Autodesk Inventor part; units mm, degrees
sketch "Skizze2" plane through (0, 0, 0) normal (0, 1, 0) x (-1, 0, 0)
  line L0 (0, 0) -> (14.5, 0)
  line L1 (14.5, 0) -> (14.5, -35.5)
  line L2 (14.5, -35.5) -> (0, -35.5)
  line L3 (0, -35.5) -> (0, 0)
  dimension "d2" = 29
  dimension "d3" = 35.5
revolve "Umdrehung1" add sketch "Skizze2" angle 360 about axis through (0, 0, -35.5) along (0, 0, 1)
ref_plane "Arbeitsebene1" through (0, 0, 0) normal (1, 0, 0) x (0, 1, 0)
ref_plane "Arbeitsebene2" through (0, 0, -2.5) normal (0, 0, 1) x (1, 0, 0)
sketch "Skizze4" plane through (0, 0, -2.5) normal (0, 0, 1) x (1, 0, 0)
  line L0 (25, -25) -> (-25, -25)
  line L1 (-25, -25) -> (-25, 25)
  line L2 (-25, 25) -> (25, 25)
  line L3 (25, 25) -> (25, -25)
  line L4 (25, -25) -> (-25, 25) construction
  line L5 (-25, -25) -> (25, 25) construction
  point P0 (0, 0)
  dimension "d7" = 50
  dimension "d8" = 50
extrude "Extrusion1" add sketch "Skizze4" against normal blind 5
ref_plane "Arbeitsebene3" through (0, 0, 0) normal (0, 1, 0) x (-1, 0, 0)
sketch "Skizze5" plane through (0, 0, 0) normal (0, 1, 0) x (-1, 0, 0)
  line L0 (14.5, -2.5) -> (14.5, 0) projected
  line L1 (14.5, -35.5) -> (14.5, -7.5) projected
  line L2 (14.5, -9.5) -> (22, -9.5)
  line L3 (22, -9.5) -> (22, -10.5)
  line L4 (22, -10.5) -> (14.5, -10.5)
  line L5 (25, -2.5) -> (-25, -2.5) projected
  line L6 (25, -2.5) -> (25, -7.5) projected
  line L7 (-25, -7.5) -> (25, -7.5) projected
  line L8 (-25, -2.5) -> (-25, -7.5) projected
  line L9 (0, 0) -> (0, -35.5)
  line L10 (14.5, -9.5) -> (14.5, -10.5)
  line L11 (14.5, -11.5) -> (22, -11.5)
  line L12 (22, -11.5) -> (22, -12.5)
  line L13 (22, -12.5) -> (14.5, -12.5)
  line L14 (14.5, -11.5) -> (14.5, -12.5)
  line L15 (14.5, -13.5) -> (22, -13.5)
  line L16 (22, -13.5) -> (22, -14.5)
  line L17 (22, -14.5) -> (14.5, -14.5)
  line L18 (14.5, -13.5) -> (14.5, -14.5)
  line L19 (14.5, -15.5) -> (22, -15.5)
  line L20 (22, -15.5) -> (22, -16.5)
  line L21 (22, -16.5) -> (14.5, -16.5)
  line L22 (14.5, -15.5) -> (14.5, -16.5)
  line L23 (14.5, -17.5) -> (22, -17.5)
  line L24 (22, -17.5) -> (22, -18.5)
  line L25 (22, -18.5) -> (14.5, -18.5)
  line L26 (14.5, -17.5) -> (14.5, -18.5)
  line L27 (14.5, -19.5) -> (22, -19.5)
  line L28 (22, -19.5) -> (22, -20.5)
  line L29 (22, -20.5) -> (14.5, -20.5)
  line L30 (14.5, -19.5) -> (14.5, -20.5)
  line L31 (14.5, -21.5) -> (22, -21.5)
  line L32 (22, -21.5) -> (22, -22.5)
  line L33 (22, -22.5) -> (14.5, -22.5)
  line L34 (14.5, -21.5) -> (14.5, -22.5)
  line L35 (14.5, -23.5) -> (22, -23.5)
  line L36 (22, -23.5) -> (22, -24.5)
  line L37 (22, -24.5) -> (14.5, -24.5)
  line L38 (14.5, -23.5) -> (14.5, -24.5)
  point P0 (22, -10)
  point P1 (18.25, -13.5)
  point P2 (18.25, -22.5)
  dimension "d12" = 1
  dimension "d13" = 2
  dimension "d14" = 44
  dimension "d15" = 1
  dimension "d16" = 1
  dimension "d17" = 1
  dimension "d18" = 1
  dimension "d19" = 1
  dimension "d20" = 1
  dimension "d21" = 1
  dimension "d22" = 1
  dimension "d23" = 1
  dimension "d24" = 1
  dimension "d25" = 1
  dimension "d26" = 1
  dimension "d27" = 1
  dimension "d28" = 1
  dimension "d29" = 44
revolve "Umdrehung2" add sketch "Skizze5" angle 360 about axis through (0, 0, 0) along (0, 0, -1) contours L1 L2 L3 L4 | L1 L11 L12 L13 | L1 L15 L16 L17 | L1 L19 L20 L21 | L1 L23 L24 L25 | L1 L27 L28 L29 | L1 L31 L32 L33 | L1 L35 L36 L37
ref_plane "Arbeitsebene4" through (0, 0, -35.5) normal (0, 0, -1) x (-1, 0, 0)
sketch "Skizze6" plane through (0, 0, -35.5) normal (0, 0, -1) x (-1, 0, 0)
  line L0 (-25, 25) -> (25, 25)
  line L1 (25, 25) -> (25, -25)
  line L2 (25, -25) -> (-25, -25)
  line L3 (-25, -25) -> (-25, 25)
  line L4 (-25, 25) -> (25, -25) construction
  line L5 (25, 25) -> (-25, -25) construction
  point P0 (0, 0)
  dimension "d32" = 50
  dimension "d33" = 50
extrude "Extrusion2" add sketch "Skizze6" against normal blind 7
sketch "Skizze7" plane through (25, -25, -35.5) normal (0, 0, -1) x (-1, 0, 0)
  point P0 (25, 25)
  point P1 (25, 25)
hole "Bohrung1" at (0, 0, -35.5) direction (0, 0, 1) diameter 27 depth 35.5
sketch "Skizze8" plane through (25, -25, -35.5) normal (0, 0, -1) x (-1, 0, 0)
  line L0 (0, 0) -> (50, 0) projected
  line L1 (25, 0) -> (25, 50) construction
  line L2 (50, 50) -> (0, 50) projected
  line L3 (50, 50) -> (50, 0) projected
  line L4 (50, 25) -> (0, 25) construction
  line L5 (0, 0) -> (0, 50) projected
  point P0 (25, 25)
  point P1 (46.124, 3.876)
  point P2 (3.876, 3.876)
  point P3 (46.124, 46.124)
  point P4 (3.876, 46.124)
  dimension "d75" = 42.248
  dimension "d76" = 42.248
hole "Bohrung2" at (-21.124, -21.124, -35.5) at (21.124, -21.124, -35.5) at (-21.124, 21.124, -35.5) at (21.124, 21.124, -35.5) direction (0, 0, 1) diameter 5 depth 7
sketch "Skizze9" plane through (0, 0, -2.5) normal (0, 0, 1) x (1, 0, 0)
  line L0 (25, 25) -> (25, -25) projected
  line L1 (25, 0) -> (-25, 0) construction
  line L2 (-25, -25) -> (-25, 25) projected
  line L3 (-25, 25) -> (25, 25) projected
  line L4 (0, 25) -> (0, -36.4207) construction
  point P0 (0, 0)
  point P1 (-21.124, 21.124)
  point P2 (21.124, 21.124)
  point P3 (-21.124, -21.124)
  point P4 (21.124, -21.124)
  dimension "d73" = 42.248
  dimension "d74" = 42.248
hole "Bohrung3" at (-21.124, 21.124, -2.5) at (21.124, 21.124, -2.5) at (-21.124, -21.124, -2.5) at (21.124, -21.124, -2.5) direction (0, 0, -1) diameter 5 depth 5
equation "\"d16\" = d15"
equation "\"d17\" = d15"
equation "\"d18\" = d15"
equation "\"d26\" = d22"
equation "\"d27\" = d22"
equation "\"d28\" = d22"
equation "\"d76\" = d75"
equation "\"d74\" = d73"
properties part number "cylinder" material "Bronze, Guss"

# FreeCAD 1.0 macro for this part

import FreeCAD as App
import Part
import Sketcher

V = App.Vector
Q = App.Units.Quantity

doc = App.newDocument("Part")
body = doc.addObject("PartDesign::Body", "Body")

sketch1 = body.newObject("Sketcher::SketchObject", "Sketch")
sketch1.AttachmentSupport = (doc.getObject("XZ_Plane"), [""])
sketch1.MapMode = "FlatFace"
sketch1.addGeometry(Part.LineSegment(V(-14, 0, 0), V(0, 0, 0)), False)
sketch1.addGeometry(Part.LineSegment(V(0, 0, 0), V(0, -36, 0)), False)
sketch1.addGeometry(Part.LineSegment(V(0, -36, 0), V(-14, -36, 0)), False)
sketch1.addGeometry(Part.LineSegment(V(-14, -36, 0), V(-14, 0, 0)), False)
sketch1.addConstraint(Sketcher.Constraint("Coincident", 0, 2, 1, 1))
sketch1.addConstraint(Sketcher.Constraint("Coincident", 1, 2, 2, 1))
sketch1.addConstraint(Sketcher.Constraint("Coincident", 2, 2, 3, 1))
sketch1.addConstraint(Sketcher.Constraint("Coincident", 3, 2, 0, 1))
sketch1.addConstraint(Sketcher.Constraint("Horizontal", 0))
sketch1.addConstraint(Sketcher.Constraint("Vertical", 1))
sketch1.addConstraint(Sketcher.Constraint("Horizontal", 2))
sketch1.addConstraint(Sketcher.Constraint("Vertical", 3))
sketch1.addConstraint(Sketcher.Constraint("Coincident", 0, 2, -1, 1))
sketch1.addConstraint(Sketcher.Constraint("DistanceY", 1, 2, 1, 1, Q("35.5 mm")))
sketch1.addConstraint(Sketcher.Constraint("DistanceX", 0, 1, 0, 2, Q("14.5 mm")))
revolution = body.newObject("PartDesign::Revolution", "Revolution")
revolution.Profile = sketch1
revolution.ReferenceAxis = (sketch1, ["V_Axis"])
revolution.Angle = 360

sketch2 = body.newObject("Sketcher::SketchObject", "Sketch001")
sketch2.AttachmentSupport = (doc.getObject("XY_Plane"), [""])
sketch2.MapMode = "FlatFace"
sketch2.AttachmentOffset = App.Placement(V(0, 0, -2.5), App.Rotation())
sketch2.addGeometry(Part.LineSegment(V(-25, -25, 0), V(25, -25, 0)), False)
sketch2.addGeometry(Part.LineSegment(V(25, -25, 0), V(25, 25, 0)), False)
sketch2.addGeometry(Part.LineSegment(V(25, 25, 0), V(-25, 25, 0)), False)
sketch2.addGeometry(Part.LineSegment(V(-25, 25, 0), V(-25, -25, 0)), False)
sketch2.addConstraint(Sketcher.Constraint("Coincident", 0, 2, 1, 1))
sketch2.addConstraint(Sketcher.Constraint("Coincident", 1, 2, 2, 1))
sketch2.addConstraint(Sketcher.Constraint("Coincident", 2, 2, 3, 1))
sketch2.addConstraint(Sketcher.Constraint("Coincident", 3, 2, 0, 1))
sketch2.addConstraint(Sketcher.Constraint("Horizontal", 0))
sketch2.addConstraint(Sketcher.Constraint("Vertical", 1))
sketch2.addConstraint(Sketcher.Constraint("Horizontal", 2))
sketch2.addConstraint(Sketcher.Constraint("Vertical", 3))
sketch2.addConstraint(Sketcher.Constraint("Symmetric", 0, 2, 2, 2, -1, 1))
sketch2.addConstraint(Sketcher.Constraint("Equal", 2, 1))
sketch2.addConstraint(Sketcher.Constraint("DistanceX", 0, 1, 0, 2, Q("50 mm")))
pad1 = body.newObject("PartDesign::Pad", "Pad")
pad1.Profile = sketch2
pad1.Length = 5
pad1.Reversed = True

sketch3 = body.newObject("Sketcher::SketchObject", "Sketch002")
sketch3.AttachmentSupport = (doc.getObject("XZ_Plane"), [""])
sketch3.MapMode = "FlatFace"
sketch3.addGeometry(Part.LineSegment(V(-14.5, -9.5, 0), V(-14.5, -10.5, 0)), False)
sketch3.addGeometry(Part.LineSegment(V(-14.5, -10.5, 0), V(-22, -10.5, 0)), False)
sketch3.addGeometry(Part.LineSegment(V(-22, -10.5, 0), V(-22, -9.5, 0)), False)
sketch3.addGeometry(Part.LineSegment(V(-22, -9.5, 0), V(-14.5, -9.5, 0)), False)
sketch3.addGeometry(Part.LineSegment(V(-14.5, -11.5, 0), V(-14.5, -12.5, 0)), False)
sketch3.addGeometry(Part.LineSegment(V(-14.5, -12.5, 0), V(-22, -12.5, 0)), False)
sketch3.addGeometry(Part.LineSegment(V(-22, -12.5, 0), V(-22, -11.5, 0)), False)
sketch3.addGeometry(Part.LineSegment(V(-22, -11.5, 0), V(-14.5, -11.5, 0)), False)
sketch3.addGeometry(Part.LineSegment(V(-14.5, -13.5, 0), V(-14.5, -14.5, 0)), False)
sketch3.addGeometry(Part.LineSegment(V(-14.5, -14.5, 0), V(-22, -14.5, 0)), False)
sketch3.addGeometry(Part.LineSegment(V(-22, -14.5, 0), V(-22, -13.5, 0)), False)
sketch3.addGeometry(Part.LineSegment(V(-22, -13.5, 0), V(-14.5, -13.5, 0)), False)
sketch3.addGeometry(Part.LineSegment(V(-14.5, -15.5, 0), V(-14.5, -16.5, 0)), False)
sketch3.addGeometry(Part.LineSegment(V(-14.5, -16.5, 0), V(-22, -16.5, 0)), False)
sketch3.addGeometry(Part.LineSegment(V(-22, -16.5, 0), V(-22, -15.5, 0)), False)
sketch3.addGeometry(Part.LineSegment(V(-22, -15.5, 0), V(-14.5, -15.5, 0)), False)
sketch3.addGeometry(Part.LineSegment(V(-14.5, -17.5, 0), V(-14.5, -18.5, 0)), False)
sketch3.addGeometry(Part.LineSegment(V(-14.5, -18.5, 0), V(-22, -18.5, 0)), False)
sketch3.addGeometry(Part.LineSegment(V(-22, -18.5, 0), V(-22, -17.5, 0)), False)
sketch3.addGeometry(Part.LineSegment(V(-22, -17.5, 0), V(-14.5, -17.5, 0)), False)
sketch3.addGeometry(Part.LineSegment(V(-14.5, -19.5, 0), V(-14.5, -20.5, 0)), False)
sketch3.addGeometry(Part.LineSegment(V(-14.5, -20.5, 0), V(-22, -20.5, 0)), False)
sketch3.addGeometry(Part.LineSegment(V(-22, -20.5, 0), V(-22, -19.5, 0)), False)
sketch3.addGeometry(Part.LineSegment(V(-22, -19.5, 0), V(-14.5, -19.5, 0)), False)
sketch3.addGeometry(Part.LineSegment(V(-14.5, -21.5, 0), V(-14.5, -22.5, 0)), False)
sketch3.addGeometry(Part.LineSegment(V(-14.5, -22.5, 0), V(-22, -22.5, 0)), False)
sketch3.addGeometry(Part.LineSegment(V(-22, -22.5, 0), V(-22, -21.5, 0)), False)
sketch3.addGeometry(Part.LineSegment(V(-22, -21.5, 0), V(-14.5, -21.5, 0)), False)
sketch3.addGeometry(Part.LineSegment(V(-14.5, -23.5, 0), V(-14.5, -24.5, 0)), False)
sketch3.addGeometry(Part.LineSegment(V(-14.5, -24.5, 0), V(-22, -24.5, 0)), False)
sketch3.addGeometry(Part.LineSegment(V(-22, -24.5, 0), V(-22, -23.5, 0)), False)
sketch3.addGeometry(Part.LineSegment(V(-22, -23.5, 0), V(-14.5, -23.5, 0)), False)
sketch3.addConstraint(Sketcher.Constraint("Coincident", 0, 2, 1, 1))
sketch3.addConstraint(Sketcher.Constraint("Coincident", 1, 2, 2, 1))
sketch3.addConstraint(Sketcher.Constraint("Coincident", 2, 2, 3, 1))
sketch3.addConstraint(Sketcher.Constraint("Coincident", 3, 2, 0, 1))
sketch3.addConstraint(Sketcher.Constraint("Coincident", 4, 2, 5, 1))
sketch3.addConstraint(Sketcher.Constraint("Coincident", 5, 2, 6, 1))
sketch3.addConstraint(Sketcher.Constraint("Coincident", 6, 2, 7, 1))
sketch3.addConstraint(Sketcher.Constraint("Coincident", 7, 2, 4, 1))
sketch3.addConstraint(Sketcher.Constraint("Coincident", 8, 2, 9, 1))
sketch3.addConstraint(Sketcher.Constraint("Coincident", 9, 2, 10, 1))
sketch3.addConstraint(Sketcher.Constraint("Coincident", 10, 2, 11, 1))
sketch3.addConstraint(Sketcher.Constraint("Coincident", 11, 2, 8, 1))
sketch3.addConstraint(Sketcher.Constraint("Coincident", 12, 2, 13, 1))
sketch3.addConstraint(Sketcher.Constraint("Coincident", 13, 2, 14, 1))
sketch3.addConstraint(Sketcher.Constraint("Coincident", 14, 2, 15, 1))
sketch3.addConstraint(Sketcher.Constraint("Coincident", 15, 2, 12, 1))
sketch3.addConstraint(Sketcher.Constraint("Coincident", 16, 2, 17, 1))
sketch3.addConstraint(Sketcher.Constraint("Coincident", 17, 2, 18, 1))
sketch3.addConstraint(Sketcher.Constraint("Coincident", 18, 2, 19, 1))
sketch3.addConstraint(Sketcher.Constraint("Coincident", 19, 2, 16, 1))
sketch3.addConstraint(Sketcher.Constraint("Coincident", 20, 2, 21, 1))
sketch3.addConstraint(Sketcher.Constraint("Coincident", 21, 2, 22, 1))
sketch3.addConstraint(Sketcher.Constraint("Coincident", 22, 2, 23, 1))
sketch3.addConstraint(Sketcher.Constraint("Coincident", 23, 2, 20, 1))
sketch3.addConstraint(Sketcher.Constraint("Coincident", 24, 2, 25, 1))
sketch3.addConstraint(Sketcher.Constraint("Coincident", 25, 2, 26, 1))
sketch3.addConstraint(Sketcher.Constraint("Coincident", 26, 2, 27, 1))
sketch3.addConstraint(Sketcher.Constraint("Coincident", 27, 2, 24, 1))
sketch3.addConstraint(Sketcher.Constraint("Coincident", 28, 2, 29, 1))
sketch3.addConstraint(Sketcher.Constraint("Coincident", 29, 2, 30, 1))
sketch3.addConstraint(Sketcher.Constraint("Coincident", 30, 2, 31, 1))
sketch3.addConstraint(Sketcher.Constraint("Coincident", 31, 2, 28, 1))
sketch3.addConstraint(Sketcher.Constraint("Vertical", 0))
sketch3.addConstraint(Sketcher.Constraint("Horizontal", 1))
sketch3.addConstraint(Sketcher.Constraint("Vertical", 2))
sketch3.addConstraint(Sketcher.Constraint("Horizontal", 3))
sketch3.addConstraint(Sketcher.Constraint("Vertical", 4))
sketch3.addConstraint(Sketcher.Constraint("Horizontal", 5))
sketch3.addConstraint(Sketcher.Constraint("Vertical", 6))
sketch3.addConstraint(Sketcher.Constraint("Horizontal", 7))
sketch3.addConstraint(Sketcher.Constraint("Vertical", 8))
sketch3.addConstraint(Sketcher.Constraint("Horizontal", 9))
sketch3.addConstraint(Sketcher.Constraint("Vertical", 10))
sketch3.addConstraint(Sketcher.Constraint("Horizontal", 11))
sketch3.addConstraint(Sketcher.Constraint("Vertical", 12))
sketch3.addConstraint(Sketcher.Constraint("Horizontal", 13))
sketch3.addConstraint(Sketcher.Constraint("Vertical", 14))
sketch3.addConstraint(Sketcher.Constraint("Horizontal", 15))
sketch3.addConstraint(Sketcher.Constraint("Vertical", 16))
sketch3.addConstraint(Sketcher.Constraint("Horizontal", 17))
sketch3.addConstraint(Sketcher.Constraint("Vertical", 18))
sketch3.addConstraint(Sketcher.Constraint("Horizontal", 19))
sketch3.addConstraint(Sketcher.Constraint("Vertical", 20))
sketch3.addConstraint(Sketcher.Constraint("Horizontal", 21))
sketch3.addConstraint(Sketcher.Constraint("Vertical", 22))
sketch3.addConstraint(Sketcher.Constraint("Horizontal", 23))
sketch3.addConstraint(Sketcher.Constraint("Vertical", 24))
sketch3.addConstraint(Sketcher.Constraint("Horizontal", 25))
sketch3.addConstraint(Sketcher.Constraint("Vertical", 26))
sketch3.addConstraint(Sketcher.Constraint("Horizontal", 27))
sketch3.addConstraint(Sketcher.Constraint("Vertical", 28))
sketch3.addConstraint(Sketcher.Constraint("Horizontal", 29))
sketch3.addConstraint(Sketcher.Constraint("Vertical", 30))
sketch3.addConstraint(Sketcher.Constraint("Horizontal", 31))
sketch3.addConstraint(Sketcher.Constraint("Vertical", 3, 2, 4, 2))
sketch3.addConstraint(Sketcher.Constraint("Vertical", 2, 2, 5, 2))
sketch3.addConstraint(Sketcher.Constraint("Vertical", 7, 2, 8, 2))
sketch3.addConstraint(Sketcher.Constraint("Vertical", 6, 2, 9, 2))
sketch3.addConstraint(Sketcher.Constraint("Vertical", 11, 2, 12, 2))
sketch3.addConstraint(Sketcher.Constraint("Vertical", 10, 2, 13, 2))
sketch3.addConstraint(Sketcher.Constraint("Vertical", 15, 2, 16, 2))
sketch3.addConstraint(Sketcher.Constraint("Vertical", 14, 2, 17, 2))
sketch3.addConstraint(Sketcher.Constraint("Vertical", 19, 2, 20, 2))
sketch3.addConstraint(Sketcher.Constraint("Vertical", 18, 2, 21, 2))
sketch3.addConstraint(Sketcher.Constraint("Vertical", 23, 2, 24, 2))
sketch3.addConstraint(Sketcher.Constraint("Vertical", 22, 2, 25, 2))
sketch3.addConstraint(Sketcher.Constraint("Vertical", 27, 2, 28, 2))
sketch3.addConstraint(Sketcher.Constraint("Vertical", 26, 2, 29, 2))
sketch3.addConstraint(Sketcher.Constraint("Equal", 2, 4))
sketch3.addConstraint(Sketcher.Constraint("Equal", 6, 8))
sketch3.addConstraint(Sketcher.Constraint("Equal", 10, 12))
sketch3.addConstraint(Sketcher.Constraint("Equal", 14, 16))
sketch3.addConstraint(Sketcher.Constraint("Equal", 18, 20))
sketch3.addConstraint(Sketcher.Constraint("Equal", 22, 24))
sketch3.addConstraint(Sketcher.Constraint("Equal", 26, 28))
sketch3.addConstraint(Sketcher.Constraint("DistanceY", 0, 2, 0, 1, Q("1 mm")))
sketch3.addConstraint(Sketcher.Constraint("DistanceY", 4, 2, 0, 2, Q("2 mm")))
sketch3.addConstraint(Sketcher.Constraint("DistanceY", 8, 2, 4, 2, Q("2 mm")))
sketch3.addConstraint(Sketcher.Constraint("DistanceY", 12, 2, 8, 2, Q("2 mm")))
sketch3.addConstraint(Sketcher.Constraint("DistanceY", 16, 2, 12, 2, Q("2 mm")))
sketch3.addConstraint(Sketcher.Constraint("DistanceY", 20, 2, 16, 2, Q("2 mm")))
sketch3.addConstraint(Sketcher.Constraint("DistanceY", 24, 2, 20, 2, Q("2 mm")))
sketch3.addConstraint(Sketcher.Constraint("DistanceY", 28, 2, 24, 2, Q("2 mm")))
sketch3.addConstraint(Sketcher.Constraint("DistanceX", 1, 2, 1, 1, Q("7.5 mm")))
sketch3.addConstraint(Sketcher.Constraint("DistanceX", 1, 2, -1, 1, Q("22 mm")))
sketch3.addConstraint(Sketcher.Constraint("DistanceY", 0, 2, -1, 1, Q("10.5 mm")))
revolution2 = body.newObject("PartDesign::Revolution", "Revolution001")
revolution2.Profile = sketch3
revolution2.ReferenceAxis = (sketch3, ["V_Axis"])
revolution2.Angle = 360

sketch4 = body.newObject("Sketcher::SketchObject", "Sketch003")
sketch4.AttachmentSupport = (doc.getObject("XY_Plane"), [""])
sketch4.MapMode = "FlatFace"
sketch4.AttachmentOffset = App.Placement(V(0, 0, -35.5), App.Rotation())
sketch4.addGeometry(Part.LineSegment(V(-25, 25, 0), V(25, 25, 0)), False)
sketch4.addGeometry(Part.LineSegment(V(25, 25, 0), V(25, -25, 0)), False)
sketch4.addGeometry(Part.LineSegment(V(25, -25, 0), V(-25, -25, 0)), False)
sketch4.addGeometry(Part.LineSegment(V(-25, -25, 0), V(-25, 25, 0)), False)
sketch4.addConstraint(Sketcher.Constraint("Coincident", 0, 2, 1, 1))
sketch4.addConstraint(Sketcher.Constraint("Coincident", 1, 2, 2, 1))
sketch4.addConstraint(Sketcher.Constraint("Coincident", 2, 2, 3, 1))
sketch4.addConstraint(Sketcher.Constraint("Coincident", 3, 2, 0, 1))
sketch4.addConstraint(Sketcher.Constraint("Horizontal", 0))
sketch4.addConstraint(Sketcher.Constraint("Vertical", 1))
sketch4.addConstraint(Sketcher.Constraint("Horizontal", 2))
sketch4.addConstraint(Sketcher.Constraint("Vertical", 3))
sketch4.addConstraint(Sketcher.Constraint("Symmetric", 0, 2, 2, 2, -1, 1))
sketch4.addConstraint(Sketcher.Constraint("Equal", 2, 1))
sketch4.addConstraint(Sketcher.Constraint("DistanceX", 0, 1, 0, 2, Q("50 mm")))
pad2 = body.newObject("PartDesign::Pad", "Pad001")
pad2.Profile = sketch4
pad2.Length = 7

sketch5 = body.newObject("Sketcher::SketchObject", "Sketch004")
sketch5.AttachmentSupport = (doc.getObject("XY_Plane"), [""])
sketch5.MapMode = "FlatFace"
sketch5.AttachmentOffset = App.Placement(V(0, 0, -35.5), App.Rotation())
sketch5.addGeometry(Part.Circle(V(0, 0, 0), V(0, 0, 1), 14), False)
sketch5.addConstraint(Sketcher.Constraint("Coincident", 0, 3, -1, 1))
sketch5.addConstraint(Sketcher.Constraint("Diameter", 0, Q("27 mm")))
doc.recompute()
hole = body.newObject("PartDesign::Hole", "Hole")
hole.Profile = sketch5
hole.ThreadType = "None"
hole.Diameter = 27
hole.DepthType = "Dimension"
hole.Depth = 35.5
hole.DrillPoint = "Flat"
hole.Reversed = True

sketch6 = body.newObject("Sketcher::SketchObject", "Sketch005")
sketch6.AttachmentSupport = (doc.getObject("XY_Plane"), [""])
sketch6.MapMode = "FlatFace"
sketch6.AttachmentOffset = App.Placement(V(0, 0, -35.5), App.Rotation())
sketch6.addGeometry(Part.Circle(V(-21.1, -21.1, 0), V(0, 0, 1), 2.5), False)
sketch6.addGeometry(Part.Circle(V(21.1, -21.1, 0), V(0, 0, 1), 2.5), False)
sketch6.addGeometry(Part.Circle(V(-21.1, 21.1, 0), V(0, 0, 1), 2.5), False)
sketch6.addGeometry(Part.Circle(V(21.1, 21.1, 0), V(0, 0, 1), 2.5), False)
sketch6.addConstraint(Sketcher.Constraint("Equal", 0, 1))
sketch6.addConstraint(Sketcher.Constraint("Equal", 1, 2))
sketch6.addConstraint(Sketcher.Constraint("Equal", 2, 3))
sketch6.addConstraint(Sketcher.Constraint("Symmetric", 1, 3, 2, 3, -1, 1))
sketch6.addConstraint(Sketcher.Constraint("Symmetric", 0, 3, 3, 3, -1, 1))
sketch6.addConstraint(Sketcher.Constraint("Symmetric", 0, 3, 1, 3, -2))
sketch6.addConstraint(Sketcher.Constraint("Diameter", 0, Q("5 mm")))
sketch6.addConstraint(Sketcher.Constraint("DistanceX", 0, 3, -1, 1, Q("21.124 mm")))
sketch6.addConstraint(Sketcher.Constraint("DistanceY", 0, 3, -1, 1, Q("21.124 mm")))
doc.recompute()
hole2 = body.newObject("PartDesign::Hole", "Hole001")
hole2.Profile = sketch6
hole2.ThreadType = "None"
hole2.Diameter = 5
hole2.DepthType = "Dimension"
hole2.Depth = 7
hole2.DrillPoint = "Flat"
hole2.Reversed = True

sketch7 = body.newObject("Sketcher::SketchObject", "Sketch006")
sketch7.AttachmentSupport = (doc.getObject("XY_Plane"), [""])
sketch7.MapMode = "FlatFace"
sketch7.AttachmentOffset = App.Placement(V(0, 0, -2.5), App.Rotation())
sketch7.addGeometry(Part.Circle(V(-21.1, 21.1, 0), V(0, 0, 1), 2.5), False)
sketch7.addGeometry(Part.Circle(V(21.1, 21.1, 0), V(0, 0, 1), 2.5), False)
sketch7.addGeometry(Part.Circle(V(-21.1, -21.1, 0), V(0, 0, 1), 2.5), False)
sketch7.addGeometry(Part.Circle(V(21.1, -21.1, 0), V(0, 0, 1), 2.5), False)
sketch7.addConstraint(Sketcher.Constraint("Equal", 0, 1))
sketch7.addConstraint(Sketcher.Constraint("Equal", 1, 2))
sketch7.addConstraint(Sketcher.Constraint("Equal", 2, 3))
sketch7.addConstraint(Sketcher.Constraint("Symmetric", 1, 3, 2, 3, -1, 1))
sketch7.addConstraint(Sketcher.Constraint("Symmetric", 0, 3, 3, 3, -1, 1))
sketch7.addConstraint(Sketcher.Constraint("Symmetric", 0, 3, 1, 3, -2))
sketch7.addConstraint(Sketcher.Constraint("Diameter", 0, Q("5 mm")))
sketch7.addConstraint(Sketcher.Constraint("DistanceX", 0, 3, -1, 1, Q("21.124 mm")))
sketch7.addConstraint(Sketcher.Constraint("DistanceY", -1, 1, 0, 3, Q("21.124 mm")))
doc.recompute()
hole3 = body.newObject("PartDesign::Hole", "Hole002")
hole3.Profile = sketch7
hole3.ThreadType = "None"
hole3.Diameter = 5
hole3.DepthType = "Dimension"
hole3.Depth = 5
hole3.DrillPoint = "Flat"

doc.recompute()
